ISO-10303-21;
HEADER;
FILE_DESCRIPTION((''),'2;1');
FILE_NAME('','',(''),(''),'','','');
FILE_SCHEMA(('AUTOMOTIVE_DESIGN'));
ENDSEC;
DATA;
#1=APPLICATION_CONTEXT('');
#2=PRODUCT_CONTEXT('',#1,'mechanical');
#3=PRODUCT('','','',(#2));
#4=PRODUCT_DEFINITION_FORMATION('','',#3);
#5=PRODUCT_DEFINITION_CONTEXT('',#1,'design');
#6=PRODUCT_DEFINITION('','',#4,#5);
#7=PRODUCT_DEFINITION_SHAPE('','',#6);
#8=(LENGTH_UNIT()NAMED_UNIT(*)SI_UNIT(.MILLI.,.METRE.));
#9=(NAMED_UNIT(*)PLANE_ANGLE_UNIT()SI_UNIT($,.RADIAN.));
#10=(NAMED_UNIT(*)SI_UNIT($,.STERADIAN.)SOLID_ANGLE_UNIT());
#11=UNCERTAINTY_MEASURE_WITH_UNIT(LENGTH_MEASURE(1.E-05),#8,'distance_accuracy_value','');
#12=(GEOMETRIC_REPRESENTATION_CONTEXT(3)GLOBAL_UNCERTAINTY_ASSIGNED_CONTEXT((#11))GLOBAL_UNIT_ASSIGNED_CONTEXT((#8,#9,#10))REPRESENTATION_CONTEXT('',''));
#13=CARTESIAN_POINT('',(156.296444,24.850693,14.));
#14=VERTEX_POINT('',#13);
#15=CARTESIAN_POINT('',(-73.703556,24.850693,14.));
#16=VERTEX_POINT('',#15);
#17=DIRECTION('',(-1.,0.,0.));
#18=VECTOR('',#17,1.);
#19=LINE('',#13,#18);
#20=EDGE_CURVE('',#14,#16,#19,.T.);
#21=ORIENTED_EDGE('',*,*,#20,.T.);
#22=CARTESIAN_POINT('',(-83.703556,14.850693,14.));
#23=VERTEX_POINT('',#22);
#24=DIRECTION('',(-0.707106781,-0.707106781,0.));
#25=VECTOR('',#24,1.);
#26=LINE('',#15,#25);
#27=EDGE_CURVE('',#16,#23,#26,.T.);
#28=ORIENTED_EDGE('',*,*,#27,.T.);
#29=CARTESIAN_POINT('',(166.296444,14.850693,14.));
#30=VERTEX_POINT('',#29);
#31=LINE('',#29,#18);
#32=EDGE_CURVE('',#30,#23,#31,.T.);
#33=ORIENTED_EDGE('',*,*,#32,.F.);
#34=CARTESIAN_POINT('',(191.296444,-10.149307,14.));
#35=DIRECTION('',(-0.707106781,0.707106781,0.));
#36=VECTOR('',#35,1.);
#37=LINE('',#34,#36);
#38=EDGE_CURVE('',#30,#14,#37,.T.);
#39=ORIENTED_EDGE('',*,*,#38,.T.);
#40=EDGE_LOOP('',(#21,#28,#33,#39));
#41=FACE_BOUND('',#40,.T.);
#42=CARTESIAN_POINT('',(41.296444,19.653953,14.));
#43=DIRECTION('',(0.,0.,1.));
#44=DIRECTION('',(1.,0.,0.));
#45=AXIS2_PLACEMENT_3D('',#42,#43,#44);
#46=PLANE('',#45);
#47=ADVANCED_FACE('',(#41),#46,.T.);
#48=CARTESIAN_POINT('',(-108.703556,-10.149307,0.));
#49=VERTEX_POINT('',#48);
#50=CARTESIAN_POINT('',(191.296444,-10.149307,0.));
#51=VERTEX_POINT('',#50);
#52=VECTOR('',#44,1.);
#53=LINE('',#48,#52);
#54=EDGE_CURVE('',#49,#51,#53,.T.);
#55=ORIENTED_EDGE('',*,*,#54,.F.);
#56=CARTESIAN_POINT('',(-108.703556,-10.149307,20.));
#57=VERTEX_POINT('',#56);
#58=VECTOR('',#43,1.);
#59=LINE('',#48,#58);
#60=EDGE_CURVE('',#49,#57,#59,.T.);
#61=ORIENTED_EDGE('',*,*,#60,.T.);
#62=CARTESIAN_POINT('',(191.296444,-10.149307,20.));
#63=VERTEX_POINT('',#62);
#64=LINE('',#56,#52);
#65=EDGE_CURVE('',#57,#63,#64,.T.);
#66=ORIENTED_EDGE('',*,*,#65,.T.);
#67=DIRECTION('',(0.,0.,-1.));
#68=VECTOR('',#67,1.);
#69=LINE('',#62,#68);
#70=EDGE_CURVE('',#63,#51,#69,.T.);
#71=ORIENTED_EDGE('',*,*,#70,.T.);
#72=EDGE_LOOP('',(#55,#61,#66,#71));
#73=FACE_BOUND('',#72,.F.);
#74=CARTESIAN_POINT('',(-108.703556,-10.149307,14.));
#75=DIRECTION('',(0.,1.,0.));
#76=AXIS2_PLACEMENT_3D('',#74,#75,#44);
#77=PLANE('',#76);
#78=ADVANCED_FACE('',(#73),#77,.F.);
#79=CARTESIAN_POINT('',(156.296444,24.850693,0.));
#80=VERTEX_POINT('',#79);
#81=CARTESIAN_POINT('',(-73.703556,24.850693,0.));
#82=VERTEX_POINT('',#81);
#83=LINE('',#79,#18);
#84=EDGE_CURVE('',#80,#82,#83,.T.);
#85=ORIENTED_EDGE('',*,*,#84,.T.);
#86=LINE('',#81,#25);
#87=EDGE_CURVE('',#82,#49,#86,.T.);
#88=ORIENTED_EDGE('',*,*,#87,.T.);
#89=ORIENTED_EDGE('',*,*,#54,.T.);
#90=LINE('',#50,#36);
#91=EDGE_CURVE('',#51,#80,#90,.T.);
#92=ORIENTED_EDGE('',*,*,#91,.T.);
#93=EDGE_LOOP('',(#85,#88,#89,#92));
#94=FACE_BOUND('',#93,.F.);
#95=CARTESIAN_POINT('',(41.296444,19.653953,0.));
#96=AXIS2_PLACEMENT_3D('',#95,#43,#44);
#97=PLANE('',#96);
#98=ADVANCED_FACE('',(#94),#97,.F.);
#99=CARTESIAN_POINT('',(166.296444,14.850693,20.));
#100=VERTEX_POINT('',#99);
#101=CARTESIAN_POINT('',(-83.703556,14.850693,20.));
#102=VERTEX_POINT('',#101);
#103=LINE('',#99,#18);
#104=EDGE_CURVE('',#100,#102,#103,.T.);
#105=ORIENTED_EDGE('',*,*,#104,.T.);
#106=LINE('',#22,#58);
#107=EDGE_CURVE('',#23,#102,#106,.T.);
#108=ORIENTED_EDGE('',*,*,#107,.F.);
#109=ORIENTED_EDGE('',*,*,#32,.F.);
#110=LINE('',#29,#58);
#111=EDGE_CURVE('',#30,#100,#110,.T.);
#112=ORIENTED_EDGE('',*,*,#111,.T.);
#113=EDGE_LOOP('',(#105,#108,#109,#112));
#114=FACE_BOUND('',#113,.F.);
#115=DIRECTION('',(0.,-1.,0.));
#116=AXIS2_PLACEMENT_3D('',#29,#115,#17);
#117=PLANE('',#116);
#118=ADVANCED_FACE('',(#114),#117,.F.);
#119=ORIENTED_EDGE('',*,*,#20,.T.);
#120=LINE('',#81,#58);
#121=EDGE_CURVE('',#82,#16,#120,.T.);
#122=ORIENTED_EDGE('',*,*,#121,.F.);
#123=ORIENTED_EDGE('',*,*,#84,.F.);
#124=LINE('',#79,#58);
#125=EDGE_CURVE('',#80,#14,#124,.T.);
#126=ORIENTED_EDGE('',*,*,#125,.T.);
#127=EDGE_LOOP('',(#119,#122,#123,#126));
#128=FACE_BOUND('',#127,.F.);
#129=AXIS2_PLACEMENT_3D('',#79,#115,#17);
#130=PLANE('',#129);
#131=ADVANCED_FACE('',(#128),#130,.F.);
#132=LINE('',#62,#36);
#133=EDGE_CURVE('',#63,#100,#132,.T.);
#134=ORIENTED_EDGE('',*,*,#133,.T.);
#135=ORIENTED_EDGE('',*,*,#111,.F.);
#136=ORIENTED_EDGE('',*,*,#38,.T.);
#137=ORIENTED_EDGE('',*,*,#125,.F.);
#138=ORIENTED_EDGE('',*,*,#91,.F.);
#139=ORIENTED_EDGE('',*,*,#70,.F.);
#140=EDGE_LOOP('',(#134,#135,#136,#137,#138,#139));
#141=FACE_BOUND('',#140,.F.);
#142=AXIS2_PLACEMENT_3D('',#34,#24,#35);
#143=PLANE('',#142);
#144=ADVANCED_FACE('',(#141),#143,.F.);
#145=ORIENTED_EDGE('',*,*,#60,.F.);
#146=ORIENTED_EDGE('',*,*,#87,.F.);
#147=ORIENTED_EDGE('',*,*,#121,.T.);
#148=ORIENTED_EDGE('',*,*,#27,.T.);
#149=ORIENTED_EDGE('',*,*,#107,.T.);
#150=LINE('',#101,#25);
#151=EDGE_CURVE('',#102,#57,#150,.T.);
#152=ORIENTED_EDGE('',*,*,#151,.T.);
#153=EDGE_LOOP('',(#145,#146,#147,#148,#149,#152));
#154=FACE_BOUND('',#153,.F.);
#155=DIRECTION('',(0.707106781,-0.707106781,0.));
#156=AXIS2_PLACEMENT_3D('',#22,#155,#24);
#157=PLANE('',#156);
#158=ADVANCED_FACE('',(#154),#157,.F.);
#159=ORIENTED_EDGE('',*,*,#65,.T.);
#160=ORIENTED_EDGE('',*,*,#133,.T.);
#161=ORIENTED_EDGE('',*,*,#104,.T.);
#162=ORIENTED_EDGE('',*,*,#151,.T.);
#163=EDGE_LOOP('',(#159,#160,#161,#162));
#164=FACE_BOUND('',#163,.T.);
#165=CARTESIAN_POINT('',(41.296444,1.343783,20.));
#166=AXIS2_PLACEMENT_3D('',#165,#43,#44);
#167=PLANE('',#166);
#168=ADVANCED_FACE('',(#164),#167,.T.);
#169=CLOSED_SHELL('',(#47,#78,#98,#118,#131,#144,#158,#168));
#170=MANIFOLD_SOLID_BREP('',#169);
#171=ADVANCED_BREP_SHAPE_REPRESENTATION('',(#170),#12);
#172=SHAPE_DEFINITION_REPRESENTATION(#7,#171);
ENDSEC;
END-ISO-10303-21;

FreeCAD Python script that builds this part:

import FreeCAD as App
import Part
import Sketcher
from FreeCAD import Vector
Q = App.Units.Quantity

doc = App.newDocument("Part")
body = doc.addObject("PartDesign::Body", "Body")

# Sketch on XY plane
sketch1 = body.newObject("Sketcher::SketchObject", "Sketch")
sketch1.AttachmentSupport = (doc.getObject("XY_Plane"), [""])
sketch1.MapMode = "FlatFace"
sketch1.addGeometry([
    Part.LineSegment(Vector(156.296444, 24.850693, 0), Vector(-73.703556, 24.850693, 0)),
    Part.LineSegment(Vector(-73.703556, 24.850693, 0), Vector(-108.703556, -10.149307, 0)),
    Part.LineSegment(Vector(-108.703556, -10.149307, 0), Vector(191.296444, -10.149307, 0)),
    Part.LineSegment(Vector(191.296444, -10.149307, 0), Vector(156.296444, 24.850693, 0)),
], False)
sketch1.addConstraint([
    Sketcher.Constraint("Coincident", 0, 2, 1, 1),
    Sketcher.Constraint("Coincident", 1, 2, 2, 1),
    Sketcher.Constraint("Coincident", 2, 2, 3, 1),
    Sketcher.Constraint("Coincident", 3, 2, 0, 1),
    Sketcher.Constraint("Horizontal", 0),
    Sketcher.Constraint("Horizontal", 2),
    Sketcher.Constraint("Perpendicular", 1, 3),
    Sketcher.Constraint("Equal", 1, 3),
    Sketcher.Constraint("DistanceX", 0, 2, 0, 1, Q("230 mm")),
    Sketcher.Constraint("DistanceX", 2, 1, 2, 2, Q("300 mm")),
    Sketcher.Constraint("DistanceX", 0, 2, -1, 1, Q("73.703556 mm")),
    Sketcher.Constraint("DistanceY", -1, 1, 0, 2, Q("24.850693 mm")),
])
pad1 = body.newObject("PartDesign::Pad", "Pad")
pad1.Profile = sketch1
pad1.Length = 14

# Sketch on XY plane
sketch2 = body.newObject("Sketcher::SketchObject", "Sketch001")
sketch2.AttachmentSupport = (doc.getObject("XY_Plane"), [""])
sketch2.MapMode = "FlatFace"
sketch2.AttachmentOffset = App.Placement(Vector(0, 0, 14), App.Rotation())
sketch2.addGeometry([
    Part.LineSegment(Vector(166.296444, 14.850693, 0), Vector(-83.703556, 14.850693, 0)),
    Part.LineSegment(Vector(-83.703556, 14.850693, 0), Vector(-108.703556, -10.149307, 0)),
    Part.LineSegment(Vector(-108.703556, -10.149307, 0), Vector(191.296444, -10.149307, 0)),
    Part.LineSegment(Vector(191.296444, -10.149307, 0), Vector(166.296444, 14.850693, 0)),
], False)
sketch2.addConstraint([
    Sketcher.Constraint("Coincident", 0, 2, 1, 1),
    Sketcher.Constraint("Coincident", 1, 2, 2, 1),
    Sketcher.Constraint("Coincident", 2, 2, 3, 1),
    Sketcher.Constraint("Coincident", 3, 2, 0, 1),
    Sketcher.Constraint("Horizontal", 0),
    Sketcher.Constraint("Horizontal", 2),
    Sketcher.Constraint("Perpendicular", 1, 3),
    Sketcher.Constraint("Equal", 1, 3),
    Sketcher.Constraint("DistanceX", 0, 2, 0, 1, Q("250 mm")),
    Sketcher.Constraint("DistanceX", 2, 1, 2, 2, Q("300 mm")),
    Sketcher.Constraint("DistanceX", 0, 2, -1, 1, Q("83.703556 mm")),
    Sketcher.Constraint("DistanceY", -1, 1, 0, 2, Q("14.850693 mm")),
])
pad2 = body.newObject("PartDesign::Pad", "Pad001")
pad2.Profile = sketch2
pad2.Length = 6

doc.recompute()
